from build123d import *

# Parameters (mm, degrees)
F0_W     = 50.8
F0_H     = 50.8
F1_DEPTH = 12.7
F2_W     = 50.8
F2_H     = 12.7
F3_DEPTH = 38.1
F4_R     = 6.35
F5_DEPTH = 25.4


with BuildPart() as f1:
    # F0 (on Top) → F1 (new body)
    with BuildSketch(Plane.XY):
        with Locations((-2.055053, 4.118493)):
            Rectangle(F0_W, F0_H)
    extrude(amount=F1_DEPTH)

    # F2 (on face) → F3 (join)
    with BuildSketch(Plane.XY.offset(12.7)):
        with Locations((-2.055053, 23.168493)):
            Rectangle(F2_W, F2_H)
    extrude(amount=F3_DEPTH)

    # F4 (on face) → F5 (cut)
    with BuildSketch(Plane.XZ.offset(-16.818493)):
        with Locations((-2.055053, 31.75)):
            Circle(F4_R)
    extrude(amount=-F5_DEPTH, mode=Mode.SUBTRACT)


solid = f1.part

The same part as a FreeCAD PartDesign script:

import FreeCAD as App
import Part
import Sketcher

V = App.Vector
Q = App.Units.Quantity

doc = App.newDocument("Part")
body = doc.addObject("PartDesign::Body", "Body")

sketch1 = doc.addObject("Sketcher::SketchObject", "Sketch")
body.addObject(sketch1)
sketch1.AttachmentSupport = (doc.XY_Plane, [""])
sketch1.MapMode = "FlatFace"
sketch1.addGeometry(Part.LineSegment(V(-27, 30, 0), V(-27, -21, 0)), False)
sketch1.addGeometry(Part.LineSegment(V(-27, -21, 0), V(23, -21, 0)), False)
sketch1.addGeometry(Part.LineSegment(V(23, -21, 0), V(23, 30, 0)), False)
sketch1.addGeometry(Part.LineSegment(V(23, 30, 0), V(-27, 30, 0)), False)
sketch1.addConstraint(Sketcher.Constraint("Coincident", 0, 2, 1, 1))
sketch1.addConstraint(Sketcher.Constraint("Coincident", 1, 2, 2, 1))
sketch1.addConstraint(Sketcher.Constraint("Coincident", 2, 2, 3, 1))
sketch1.addConstraint(Sketcher.Constraint("Coincident", 3, 2, 0, 1))
sketch1.addConstraint(Sketcher.Constraint("Vertical", 0))
sketch1.addConstraint(Sketcher.Constraint("Horizontal", 1))
sketch1.addConstraint(Sketcher.Constraint("Vertical", 2))
sketch1.addConstraint(Sketcher.Constraint("Horizontal", 3))
sketch1.addConstraint(Sketcher.Constraint("Equal", 3, 0))
sketch1.addConstraint(Sketcher.Constraint("DistanceX", 1, 1, 1, 2, Q("2 in")))
sketch1.addConstraint(Sketcher.Constraint("DistanceX", 0, 2, -1, 1, 27.455053))
sketch1.addConstraint(Sketcher.Constraint("DistanceY", 0, 2, -1, 1, 21.281507))
pad1 = doc.addObject("PartDesign::Pad", "Pad")
body.addObject(pad1)
pad1.Profile = sketch1
pad1.Length = Q("0.5 in")

sketch2 = doc.addObject("Sketcher::SketchObject", "Sketch001")
body.addObject(sketch2)
sketch2.AttachmentSupport = (doc.XY_Plane, [""])
sketch2.MapMode = "FlatFace"
sketch2.AttachmentOffset = App.Placement(V(0, 0, 0.5 * 25.4), App.Rotation())
sketch2.addGeometry(Part.LineSegment(V(-27, 30, 0), V(-27, 17, 0)), False)
sketch2.addGeometry(Part.LineSegment(V(-27, 17, 0), V(23, 17, 0)), False)
sketch2.addGeometry(Part.LineSegment(V(23, 17, 0), V(23, 30, 0)), False)
sketch2.addGeometry(Part.LineSegment(V(23, 30, 0), V(-27, 30, 0)), False)
sketch2.addConstraint(Sketcher.Constraint("Coincident", 0, 2, 1, 1))
sketch2.addConstraint(Sketcher.Constraint("Coincident", 1, 2, 2, 1))
sketch2.addConstraint(Sketcher.Constraint("Coincident", 2, 2, 3, 1))
sketch2.addConstraint(Sketcher.Constraint("Coincident", 3, 2, 0, 1))
sketch2.addConstraint(Sketcher.Constraint("Vertical", 0))
sketch2.addConstraint(Sketcher.Constraint("Horizontal", 1))
sketch2.addConstraint(Sketcher.Constraint("Vertical", 2))
sketch2.addConstraint(Sketcher.Constraint("Horizontal", 3))
sketch2.addConstraint(Sketcher.Constraint("DistanceX", 1, 1, 1, 2, Q("2 in")))
sketch2.addConstraint(Sketcher.Constraint("DistanceY", 0, 2, 0, 1, Q("0.5 in")))
sketch2.addConstraint(Sketcher.Constraint("DistanceX", 0, 2, -1, 1, 27.455053))
sketch2.addConstraint(Sketcher.Constraint("DistanceY", -1, 1, 0, 2, 16.818493))
pad2 = doc.addObject("PartDesign::Pad", "Pad001")
body.addObject(pad2)
pad2.Profile = sketch2
pad2.Length = Q("1.5 in")

sketch3 = doc.addObject("Sketcher::SketchObject", "Sketch002")
body.addObject(sketch3)
sketch3.AttachmentSupport = (doc.XZ_Plane, [""])
sketch3.MapMode = "FlatFace"
sketch3.AttachmentOffset = App.Placement(V(0, 0, -16.818493), App.Rotation())
sketch3.addGeometry(Part.Circle(V(-2, 32, 0), V(0, 0, 1), 6), False)
sketch3.addConstraint(Sketcher.Constraint("Diameter", 0, Q("0.5 in")))
sketch3.addConstraint(Sketcher.Constraint("DistanceY", -1, 1, 0, 3, Q("1.25 in")))
sketch3.addConstraint(Sketcher.Constraint("DistanceX", 0, 3, -1, 1, 2.055053))
pocket1 = doc.addObject("PartDesign::Pocket", "Pocket")
body.addObject(pocket1)
pocket1.Profile = sketch3
pocket1.Length = Q("1 in")

doc.recompute()
